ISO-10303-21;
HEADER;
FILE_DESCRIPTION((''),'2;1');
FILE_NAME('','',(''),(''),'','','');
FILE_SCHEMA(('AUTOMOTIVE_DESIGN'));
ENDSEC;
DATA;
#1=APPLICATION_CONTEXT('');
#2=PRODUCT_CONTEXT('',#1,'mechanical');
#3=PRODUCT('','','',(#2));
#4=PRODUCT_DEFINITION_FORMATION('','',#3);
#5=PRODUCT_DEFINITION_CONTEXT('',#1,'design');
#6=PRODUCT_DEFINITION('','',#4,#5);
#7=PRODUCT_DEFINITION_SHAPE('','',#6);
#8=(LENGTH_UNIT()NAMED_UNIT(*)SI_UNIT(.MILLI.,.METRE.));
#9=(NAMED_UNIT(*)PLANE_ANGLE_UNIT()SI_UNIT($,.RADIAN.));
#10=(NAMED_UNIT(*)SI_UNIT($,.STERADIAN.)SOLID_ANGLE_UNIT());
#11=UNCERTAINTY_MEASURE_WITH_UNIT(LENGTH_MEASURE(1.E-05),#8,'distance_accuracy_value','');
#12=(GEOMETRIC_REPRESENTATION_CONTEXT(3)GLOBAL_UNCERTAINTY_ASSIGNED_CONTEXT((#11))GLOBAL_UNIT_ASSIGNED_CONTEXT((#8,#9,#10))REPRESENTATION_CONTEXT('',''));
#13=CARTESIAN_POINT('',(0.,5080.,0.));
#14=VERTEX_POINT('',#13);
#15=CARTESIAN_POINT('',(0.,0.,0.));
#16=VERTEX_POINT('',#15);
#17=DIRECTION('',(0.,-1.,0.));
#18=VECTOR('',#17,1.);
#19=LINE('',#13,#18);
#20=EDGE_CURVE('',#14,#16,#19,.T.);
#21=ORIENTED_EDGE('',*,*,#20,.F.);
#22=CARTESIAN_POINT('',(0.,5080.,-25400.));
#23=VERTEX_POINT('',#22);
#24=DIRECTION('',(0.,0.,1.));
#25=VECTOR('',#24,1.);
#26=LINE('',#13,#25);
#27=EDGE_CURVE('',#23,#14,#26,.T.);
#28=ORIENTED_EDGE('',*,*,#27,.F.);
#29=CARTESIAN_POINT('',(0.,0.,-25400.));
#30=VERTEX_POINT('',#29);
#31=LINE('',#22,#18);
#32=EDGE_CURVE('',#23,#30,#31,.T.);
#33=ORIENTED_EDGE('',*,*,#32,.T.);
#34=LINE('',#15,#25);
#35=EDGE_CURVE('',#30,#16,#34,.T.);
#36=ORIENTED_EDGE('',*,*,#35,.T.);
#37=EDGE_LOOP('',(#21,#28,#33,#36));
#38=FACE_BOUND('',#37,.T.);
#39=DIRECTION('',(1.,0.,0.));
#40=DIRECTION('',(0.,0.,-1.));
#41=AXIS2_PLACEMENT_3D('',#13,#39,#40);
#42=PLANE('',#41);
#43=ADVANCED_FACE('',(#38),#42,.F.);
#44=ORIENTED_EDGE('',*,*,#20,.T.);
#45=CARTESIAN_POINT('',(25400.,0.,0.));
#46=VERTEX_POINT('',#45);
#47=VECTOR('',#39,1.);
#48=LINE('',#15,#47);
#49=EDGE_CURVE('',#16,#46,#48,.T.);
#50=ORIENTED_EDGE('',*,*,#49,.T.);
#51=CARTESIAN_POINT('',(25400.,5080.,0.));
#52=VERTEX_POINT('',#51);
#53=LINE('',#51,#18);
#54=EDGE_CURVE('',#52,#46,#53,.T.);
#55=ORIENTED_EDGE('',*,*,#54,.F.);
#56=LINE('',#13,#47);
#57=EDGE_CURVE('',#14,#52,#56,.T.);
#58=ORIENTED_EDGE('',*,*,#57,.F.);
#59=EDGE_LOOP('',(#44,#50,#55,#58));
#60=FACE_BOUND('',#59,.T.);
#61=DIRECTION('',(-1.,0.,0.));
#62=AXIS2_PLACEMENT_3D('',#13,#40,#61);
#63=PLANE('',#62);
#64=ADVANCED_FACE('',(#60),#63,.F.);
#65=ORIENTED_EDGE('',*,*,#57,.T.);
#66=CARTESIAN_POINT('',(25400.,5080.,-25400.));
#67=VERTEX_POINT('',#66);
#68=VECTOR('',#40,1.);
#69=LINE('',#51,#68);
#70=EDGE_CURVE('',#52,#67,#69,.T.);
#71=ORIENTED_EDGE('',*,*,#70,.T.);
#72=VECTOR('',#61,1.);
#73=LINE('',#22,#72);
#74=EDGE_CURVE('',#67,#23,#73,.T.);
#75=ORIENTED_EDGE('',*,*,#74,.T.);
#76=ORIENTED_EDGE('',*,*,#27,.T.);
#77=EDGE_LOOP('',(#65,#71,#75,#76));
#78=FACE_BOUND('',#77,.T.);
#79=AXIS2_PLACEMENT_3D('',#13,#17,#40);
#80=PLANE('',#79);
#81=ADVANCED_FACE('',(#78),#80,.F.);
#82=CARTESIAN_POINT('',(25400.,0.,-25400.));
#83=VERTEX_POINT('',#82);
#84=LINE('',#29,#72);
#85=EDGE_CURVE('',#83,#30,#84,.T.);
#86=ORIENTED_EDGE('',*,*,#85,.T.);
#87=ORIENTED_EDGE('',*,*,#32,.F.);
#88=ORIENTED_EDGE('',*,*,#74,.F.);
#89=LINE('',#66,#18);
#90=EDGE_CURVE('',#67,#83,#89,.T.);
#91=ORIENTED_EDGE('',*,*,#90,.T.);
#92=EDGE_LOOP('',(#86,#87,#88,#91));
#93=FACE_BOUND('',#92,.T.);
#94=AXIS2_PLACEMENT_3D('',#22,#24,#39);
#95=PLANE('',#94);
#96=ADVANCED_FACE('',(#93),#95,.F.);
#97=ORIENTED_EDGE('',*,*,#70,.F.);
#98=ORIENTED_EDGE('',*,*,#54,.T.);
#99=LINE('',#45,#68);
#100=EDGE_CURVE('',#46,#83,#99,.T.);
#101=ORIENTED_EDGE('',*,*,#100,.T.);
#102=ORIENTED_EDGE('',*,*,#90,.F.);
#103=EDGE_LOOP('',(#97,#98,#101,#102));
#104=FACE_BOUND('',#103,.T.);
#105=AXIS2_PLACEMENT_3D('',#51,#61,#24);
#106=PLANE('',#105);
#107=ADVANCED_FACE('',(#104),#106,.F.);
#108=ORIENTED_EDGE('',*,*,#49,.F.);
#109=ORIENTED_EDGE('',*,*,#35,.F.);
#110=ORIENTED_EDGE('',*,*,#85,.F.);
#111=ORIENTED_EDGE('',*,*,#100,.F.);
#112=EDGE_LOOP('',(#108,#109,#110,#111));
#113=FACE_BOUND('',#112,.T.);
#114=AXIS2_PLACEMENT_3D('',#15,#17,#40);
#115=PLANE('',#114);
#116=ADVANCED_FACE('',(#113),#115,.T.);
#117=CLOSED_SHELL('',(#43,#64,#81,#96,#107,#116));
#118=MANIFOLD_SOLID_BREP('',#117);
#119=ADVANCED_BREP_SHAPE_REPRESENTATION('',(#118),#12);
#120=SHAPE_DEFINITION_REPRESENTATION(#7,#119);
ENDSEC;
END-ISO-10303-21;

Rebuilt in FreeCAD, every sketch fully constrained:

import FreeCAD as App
import Part
import Sketcher
from FreeCAD import Vector
Q = App.Units.Quantity


def add_polygon(sketch, points):
    """Adds a closed chain of lines whose ends are joined by coincident constraints."""
    first, n = sketch.GeometryCount, len(points)
    for a, b in zip(points, points[1:] + points[:1]):
        sketch.addGeometry(Part.LineSegment(App.Vector(*a, 0), App.Vector(*b, 0)), False)
    for i in range(n):
        sketch.addConstraint(Sketcher.Constraint("Coincident", first + i, 2, first + (i + 1) % n, 1))

doc = App.newDocument("Part")
body = doc.addObject("PartDesign::Body", "Body")

sketch1 = body.newObject("Sketcher::SketchObject", "Sketch")
sketch1.AttachmentSupport = (doc.getObject("XZ_Plane"), [""])
sketch1.MapMode = "FlatFace"
add_polygon(sketch1, [(0, -25400), (0, 0), (25400, 0), (25400, -25400)])
sketch1.addConstraint([
    Sketcher.Constraint("Vertical", 0),
    Sketcher.Constraint("Horizontal", 1),
    Sketcher.Constraint("Vertical", 2),
    Sketcher.Constraint("Horizontal", 3),
    Sketcher.Constraint("Coincident", 0, 2, -1, 1),
    Sketcher.Constraint("Equal", 3, 0),
    Sketcher.Constraint("DistanceX", 1, 1, 1, 2, Q("1000 in")),
])
pad1 = body.newObject("PartDesign::Pad", "Pad")
pad1.Profile = sketch1
pad1.Length = Q("200 in")
pad1.Reversed = True

doc.recompute()
